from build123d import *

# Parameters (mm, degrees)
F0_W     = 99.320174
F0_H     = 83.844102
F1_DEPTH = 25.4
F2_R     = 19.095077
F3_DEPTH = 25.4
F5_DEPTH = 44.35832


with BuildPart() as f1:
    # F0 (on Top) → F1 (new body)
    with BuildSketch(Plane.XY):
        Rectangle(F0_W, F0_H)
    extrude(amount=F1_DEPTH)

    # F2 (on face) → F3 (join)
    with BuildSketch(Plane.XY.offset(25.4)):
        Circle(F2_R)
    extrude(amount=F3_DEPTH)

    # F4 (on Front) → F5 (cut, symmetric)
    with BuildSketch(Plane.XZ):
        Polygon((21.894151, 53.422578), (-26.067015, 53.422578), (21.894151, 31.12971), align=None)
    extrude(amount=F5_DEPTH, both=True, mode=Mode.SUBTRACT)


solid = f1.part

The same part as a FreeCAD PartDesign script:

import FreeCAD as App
import Part
import Sketcher
Q = App.Units.Quantity


def add_polygon(sketch, points):
    """Adds a closed chain of lines whose ends are joined by coincident constraints."""
    first, n = sketch.GeometryCount, len(points)
    for a, b in zip(points, points[1:] + points[:1]):
        sketch.addGeometry(Part.LineSegment(App.Vector(*a, 0), App.Vector(*b, 0)), False)
    for i in range(n):
        sketch.addConstraint(Sketcher.Constraint("Coincident", first + i, 2, first + (i + 1) % n, 1))

doc = App.newDocument("Part")
body = doc.addObject("PartDesign::Body", "Body")

# Sketch on XY plane
sketch1 = doc.addObject("Sketcher::SketchObject", "Sketch")
body.addObject(sketch1)
sketch1.AttachmentSupport = (doc.XY_Plane, [""])
sketch1.MapMode = "FlatFace"
add_polygon(sketch1, [(-50, 42), (-50, -42), (50, -42), (50, 42)])  # lines 0-3
sketch1.addConstraint([
    Sketcher.Constraint("Vertical", 0),
    Sketcher.Constraint("Horizontal", 1),
    Sketcher.Constraint("Vertical", 2),
    Sketcher.Constraint("Horizontal", 3),
    Sketcher.Constraint("Symmetric", 0, 2, 2, 2, -1, 1),
    Sketcher.Constraint("DistanceX", 1, 1, 1, 2, Q("99.320174 mm")),
    Sketcher.Constraint("DistanceY", 0, 2, 0, 1, Q("83.844102 mm")),
])
pad1 = doc.addObject("PartDesign::Pad", "Pad")
body.addObject(pad1)
pad1.Profile = sketch1
pad1.Length = Q("1 in")

# Sketch on XY plane
sketch2 = doc.addObject("Sketcher::SketchObject", "Sketch001")
body.addObject(sketch2)
sketch2.AttachmentSupport = (doc.XY_Plane, [""])
sketch2.MapMode = "FlatFace"
sketch2.AttachmentOffset = App.Placement(App.Vector(0, 0, 1 * 25.4), App.Rotation())
sketch2.addGeometry(Part.Circle(App.Vector(0, 0, 0), App.Vector(0, 0, 1), 19), False)
sketch2.addConstraint([
    Sketcher.Constraint("Coincident", 0, 3, -1, 1),
    Sketcher.Constraint("Diameter", 0, Q("38.190154 mm")),
])
pad2 = doc.addObject("PartDesign::Pad", "Pad001")
body.addObject(pad2)
pad2.Profile = sketch2
pad2.Length = Q("1 in")

# Sketch on XZ plane
sketch3 = doc.addObject("Sketcher::SketchObject", "Sketch002")
body.addObject(sketch3)
sketch3.AttachmentSupport = (doc.XZ_Plane, [""])
sketch3.MapMode = "FlatFace"
add_polygon(sketch3, [(22, 53), (-26, 53), (22, 31)])  # lines 0-2
sketch3.addConstraint([
    Sketcher.Constraint("Horizontal", 0),
    Sketcher.Constraint("Vertical", 2),
    Sketcher.Constraint("DistanceY", 2, 1, 2, 2, Q("22.292868 mm")),
    Sketcher.Constraint("Distance", 1, Q("52.888991 mm")),
    Sketcher.Constraint("DistanceX", -1, 1, 1, 2, Q("21.894151 mm")),
    Sketcher.Constraint("DistanceY", -1, 1, 1, 2, Q("31.12971 mm")),
])
pocket1 = doc.addObject("PartDesign::Pocket", "Pocket")
body.addObject(pocket1)
pocket1.Profile = sketch3
pocket1.Length = 88.71664
pocket1.Midplane = True

doc.recompute()
